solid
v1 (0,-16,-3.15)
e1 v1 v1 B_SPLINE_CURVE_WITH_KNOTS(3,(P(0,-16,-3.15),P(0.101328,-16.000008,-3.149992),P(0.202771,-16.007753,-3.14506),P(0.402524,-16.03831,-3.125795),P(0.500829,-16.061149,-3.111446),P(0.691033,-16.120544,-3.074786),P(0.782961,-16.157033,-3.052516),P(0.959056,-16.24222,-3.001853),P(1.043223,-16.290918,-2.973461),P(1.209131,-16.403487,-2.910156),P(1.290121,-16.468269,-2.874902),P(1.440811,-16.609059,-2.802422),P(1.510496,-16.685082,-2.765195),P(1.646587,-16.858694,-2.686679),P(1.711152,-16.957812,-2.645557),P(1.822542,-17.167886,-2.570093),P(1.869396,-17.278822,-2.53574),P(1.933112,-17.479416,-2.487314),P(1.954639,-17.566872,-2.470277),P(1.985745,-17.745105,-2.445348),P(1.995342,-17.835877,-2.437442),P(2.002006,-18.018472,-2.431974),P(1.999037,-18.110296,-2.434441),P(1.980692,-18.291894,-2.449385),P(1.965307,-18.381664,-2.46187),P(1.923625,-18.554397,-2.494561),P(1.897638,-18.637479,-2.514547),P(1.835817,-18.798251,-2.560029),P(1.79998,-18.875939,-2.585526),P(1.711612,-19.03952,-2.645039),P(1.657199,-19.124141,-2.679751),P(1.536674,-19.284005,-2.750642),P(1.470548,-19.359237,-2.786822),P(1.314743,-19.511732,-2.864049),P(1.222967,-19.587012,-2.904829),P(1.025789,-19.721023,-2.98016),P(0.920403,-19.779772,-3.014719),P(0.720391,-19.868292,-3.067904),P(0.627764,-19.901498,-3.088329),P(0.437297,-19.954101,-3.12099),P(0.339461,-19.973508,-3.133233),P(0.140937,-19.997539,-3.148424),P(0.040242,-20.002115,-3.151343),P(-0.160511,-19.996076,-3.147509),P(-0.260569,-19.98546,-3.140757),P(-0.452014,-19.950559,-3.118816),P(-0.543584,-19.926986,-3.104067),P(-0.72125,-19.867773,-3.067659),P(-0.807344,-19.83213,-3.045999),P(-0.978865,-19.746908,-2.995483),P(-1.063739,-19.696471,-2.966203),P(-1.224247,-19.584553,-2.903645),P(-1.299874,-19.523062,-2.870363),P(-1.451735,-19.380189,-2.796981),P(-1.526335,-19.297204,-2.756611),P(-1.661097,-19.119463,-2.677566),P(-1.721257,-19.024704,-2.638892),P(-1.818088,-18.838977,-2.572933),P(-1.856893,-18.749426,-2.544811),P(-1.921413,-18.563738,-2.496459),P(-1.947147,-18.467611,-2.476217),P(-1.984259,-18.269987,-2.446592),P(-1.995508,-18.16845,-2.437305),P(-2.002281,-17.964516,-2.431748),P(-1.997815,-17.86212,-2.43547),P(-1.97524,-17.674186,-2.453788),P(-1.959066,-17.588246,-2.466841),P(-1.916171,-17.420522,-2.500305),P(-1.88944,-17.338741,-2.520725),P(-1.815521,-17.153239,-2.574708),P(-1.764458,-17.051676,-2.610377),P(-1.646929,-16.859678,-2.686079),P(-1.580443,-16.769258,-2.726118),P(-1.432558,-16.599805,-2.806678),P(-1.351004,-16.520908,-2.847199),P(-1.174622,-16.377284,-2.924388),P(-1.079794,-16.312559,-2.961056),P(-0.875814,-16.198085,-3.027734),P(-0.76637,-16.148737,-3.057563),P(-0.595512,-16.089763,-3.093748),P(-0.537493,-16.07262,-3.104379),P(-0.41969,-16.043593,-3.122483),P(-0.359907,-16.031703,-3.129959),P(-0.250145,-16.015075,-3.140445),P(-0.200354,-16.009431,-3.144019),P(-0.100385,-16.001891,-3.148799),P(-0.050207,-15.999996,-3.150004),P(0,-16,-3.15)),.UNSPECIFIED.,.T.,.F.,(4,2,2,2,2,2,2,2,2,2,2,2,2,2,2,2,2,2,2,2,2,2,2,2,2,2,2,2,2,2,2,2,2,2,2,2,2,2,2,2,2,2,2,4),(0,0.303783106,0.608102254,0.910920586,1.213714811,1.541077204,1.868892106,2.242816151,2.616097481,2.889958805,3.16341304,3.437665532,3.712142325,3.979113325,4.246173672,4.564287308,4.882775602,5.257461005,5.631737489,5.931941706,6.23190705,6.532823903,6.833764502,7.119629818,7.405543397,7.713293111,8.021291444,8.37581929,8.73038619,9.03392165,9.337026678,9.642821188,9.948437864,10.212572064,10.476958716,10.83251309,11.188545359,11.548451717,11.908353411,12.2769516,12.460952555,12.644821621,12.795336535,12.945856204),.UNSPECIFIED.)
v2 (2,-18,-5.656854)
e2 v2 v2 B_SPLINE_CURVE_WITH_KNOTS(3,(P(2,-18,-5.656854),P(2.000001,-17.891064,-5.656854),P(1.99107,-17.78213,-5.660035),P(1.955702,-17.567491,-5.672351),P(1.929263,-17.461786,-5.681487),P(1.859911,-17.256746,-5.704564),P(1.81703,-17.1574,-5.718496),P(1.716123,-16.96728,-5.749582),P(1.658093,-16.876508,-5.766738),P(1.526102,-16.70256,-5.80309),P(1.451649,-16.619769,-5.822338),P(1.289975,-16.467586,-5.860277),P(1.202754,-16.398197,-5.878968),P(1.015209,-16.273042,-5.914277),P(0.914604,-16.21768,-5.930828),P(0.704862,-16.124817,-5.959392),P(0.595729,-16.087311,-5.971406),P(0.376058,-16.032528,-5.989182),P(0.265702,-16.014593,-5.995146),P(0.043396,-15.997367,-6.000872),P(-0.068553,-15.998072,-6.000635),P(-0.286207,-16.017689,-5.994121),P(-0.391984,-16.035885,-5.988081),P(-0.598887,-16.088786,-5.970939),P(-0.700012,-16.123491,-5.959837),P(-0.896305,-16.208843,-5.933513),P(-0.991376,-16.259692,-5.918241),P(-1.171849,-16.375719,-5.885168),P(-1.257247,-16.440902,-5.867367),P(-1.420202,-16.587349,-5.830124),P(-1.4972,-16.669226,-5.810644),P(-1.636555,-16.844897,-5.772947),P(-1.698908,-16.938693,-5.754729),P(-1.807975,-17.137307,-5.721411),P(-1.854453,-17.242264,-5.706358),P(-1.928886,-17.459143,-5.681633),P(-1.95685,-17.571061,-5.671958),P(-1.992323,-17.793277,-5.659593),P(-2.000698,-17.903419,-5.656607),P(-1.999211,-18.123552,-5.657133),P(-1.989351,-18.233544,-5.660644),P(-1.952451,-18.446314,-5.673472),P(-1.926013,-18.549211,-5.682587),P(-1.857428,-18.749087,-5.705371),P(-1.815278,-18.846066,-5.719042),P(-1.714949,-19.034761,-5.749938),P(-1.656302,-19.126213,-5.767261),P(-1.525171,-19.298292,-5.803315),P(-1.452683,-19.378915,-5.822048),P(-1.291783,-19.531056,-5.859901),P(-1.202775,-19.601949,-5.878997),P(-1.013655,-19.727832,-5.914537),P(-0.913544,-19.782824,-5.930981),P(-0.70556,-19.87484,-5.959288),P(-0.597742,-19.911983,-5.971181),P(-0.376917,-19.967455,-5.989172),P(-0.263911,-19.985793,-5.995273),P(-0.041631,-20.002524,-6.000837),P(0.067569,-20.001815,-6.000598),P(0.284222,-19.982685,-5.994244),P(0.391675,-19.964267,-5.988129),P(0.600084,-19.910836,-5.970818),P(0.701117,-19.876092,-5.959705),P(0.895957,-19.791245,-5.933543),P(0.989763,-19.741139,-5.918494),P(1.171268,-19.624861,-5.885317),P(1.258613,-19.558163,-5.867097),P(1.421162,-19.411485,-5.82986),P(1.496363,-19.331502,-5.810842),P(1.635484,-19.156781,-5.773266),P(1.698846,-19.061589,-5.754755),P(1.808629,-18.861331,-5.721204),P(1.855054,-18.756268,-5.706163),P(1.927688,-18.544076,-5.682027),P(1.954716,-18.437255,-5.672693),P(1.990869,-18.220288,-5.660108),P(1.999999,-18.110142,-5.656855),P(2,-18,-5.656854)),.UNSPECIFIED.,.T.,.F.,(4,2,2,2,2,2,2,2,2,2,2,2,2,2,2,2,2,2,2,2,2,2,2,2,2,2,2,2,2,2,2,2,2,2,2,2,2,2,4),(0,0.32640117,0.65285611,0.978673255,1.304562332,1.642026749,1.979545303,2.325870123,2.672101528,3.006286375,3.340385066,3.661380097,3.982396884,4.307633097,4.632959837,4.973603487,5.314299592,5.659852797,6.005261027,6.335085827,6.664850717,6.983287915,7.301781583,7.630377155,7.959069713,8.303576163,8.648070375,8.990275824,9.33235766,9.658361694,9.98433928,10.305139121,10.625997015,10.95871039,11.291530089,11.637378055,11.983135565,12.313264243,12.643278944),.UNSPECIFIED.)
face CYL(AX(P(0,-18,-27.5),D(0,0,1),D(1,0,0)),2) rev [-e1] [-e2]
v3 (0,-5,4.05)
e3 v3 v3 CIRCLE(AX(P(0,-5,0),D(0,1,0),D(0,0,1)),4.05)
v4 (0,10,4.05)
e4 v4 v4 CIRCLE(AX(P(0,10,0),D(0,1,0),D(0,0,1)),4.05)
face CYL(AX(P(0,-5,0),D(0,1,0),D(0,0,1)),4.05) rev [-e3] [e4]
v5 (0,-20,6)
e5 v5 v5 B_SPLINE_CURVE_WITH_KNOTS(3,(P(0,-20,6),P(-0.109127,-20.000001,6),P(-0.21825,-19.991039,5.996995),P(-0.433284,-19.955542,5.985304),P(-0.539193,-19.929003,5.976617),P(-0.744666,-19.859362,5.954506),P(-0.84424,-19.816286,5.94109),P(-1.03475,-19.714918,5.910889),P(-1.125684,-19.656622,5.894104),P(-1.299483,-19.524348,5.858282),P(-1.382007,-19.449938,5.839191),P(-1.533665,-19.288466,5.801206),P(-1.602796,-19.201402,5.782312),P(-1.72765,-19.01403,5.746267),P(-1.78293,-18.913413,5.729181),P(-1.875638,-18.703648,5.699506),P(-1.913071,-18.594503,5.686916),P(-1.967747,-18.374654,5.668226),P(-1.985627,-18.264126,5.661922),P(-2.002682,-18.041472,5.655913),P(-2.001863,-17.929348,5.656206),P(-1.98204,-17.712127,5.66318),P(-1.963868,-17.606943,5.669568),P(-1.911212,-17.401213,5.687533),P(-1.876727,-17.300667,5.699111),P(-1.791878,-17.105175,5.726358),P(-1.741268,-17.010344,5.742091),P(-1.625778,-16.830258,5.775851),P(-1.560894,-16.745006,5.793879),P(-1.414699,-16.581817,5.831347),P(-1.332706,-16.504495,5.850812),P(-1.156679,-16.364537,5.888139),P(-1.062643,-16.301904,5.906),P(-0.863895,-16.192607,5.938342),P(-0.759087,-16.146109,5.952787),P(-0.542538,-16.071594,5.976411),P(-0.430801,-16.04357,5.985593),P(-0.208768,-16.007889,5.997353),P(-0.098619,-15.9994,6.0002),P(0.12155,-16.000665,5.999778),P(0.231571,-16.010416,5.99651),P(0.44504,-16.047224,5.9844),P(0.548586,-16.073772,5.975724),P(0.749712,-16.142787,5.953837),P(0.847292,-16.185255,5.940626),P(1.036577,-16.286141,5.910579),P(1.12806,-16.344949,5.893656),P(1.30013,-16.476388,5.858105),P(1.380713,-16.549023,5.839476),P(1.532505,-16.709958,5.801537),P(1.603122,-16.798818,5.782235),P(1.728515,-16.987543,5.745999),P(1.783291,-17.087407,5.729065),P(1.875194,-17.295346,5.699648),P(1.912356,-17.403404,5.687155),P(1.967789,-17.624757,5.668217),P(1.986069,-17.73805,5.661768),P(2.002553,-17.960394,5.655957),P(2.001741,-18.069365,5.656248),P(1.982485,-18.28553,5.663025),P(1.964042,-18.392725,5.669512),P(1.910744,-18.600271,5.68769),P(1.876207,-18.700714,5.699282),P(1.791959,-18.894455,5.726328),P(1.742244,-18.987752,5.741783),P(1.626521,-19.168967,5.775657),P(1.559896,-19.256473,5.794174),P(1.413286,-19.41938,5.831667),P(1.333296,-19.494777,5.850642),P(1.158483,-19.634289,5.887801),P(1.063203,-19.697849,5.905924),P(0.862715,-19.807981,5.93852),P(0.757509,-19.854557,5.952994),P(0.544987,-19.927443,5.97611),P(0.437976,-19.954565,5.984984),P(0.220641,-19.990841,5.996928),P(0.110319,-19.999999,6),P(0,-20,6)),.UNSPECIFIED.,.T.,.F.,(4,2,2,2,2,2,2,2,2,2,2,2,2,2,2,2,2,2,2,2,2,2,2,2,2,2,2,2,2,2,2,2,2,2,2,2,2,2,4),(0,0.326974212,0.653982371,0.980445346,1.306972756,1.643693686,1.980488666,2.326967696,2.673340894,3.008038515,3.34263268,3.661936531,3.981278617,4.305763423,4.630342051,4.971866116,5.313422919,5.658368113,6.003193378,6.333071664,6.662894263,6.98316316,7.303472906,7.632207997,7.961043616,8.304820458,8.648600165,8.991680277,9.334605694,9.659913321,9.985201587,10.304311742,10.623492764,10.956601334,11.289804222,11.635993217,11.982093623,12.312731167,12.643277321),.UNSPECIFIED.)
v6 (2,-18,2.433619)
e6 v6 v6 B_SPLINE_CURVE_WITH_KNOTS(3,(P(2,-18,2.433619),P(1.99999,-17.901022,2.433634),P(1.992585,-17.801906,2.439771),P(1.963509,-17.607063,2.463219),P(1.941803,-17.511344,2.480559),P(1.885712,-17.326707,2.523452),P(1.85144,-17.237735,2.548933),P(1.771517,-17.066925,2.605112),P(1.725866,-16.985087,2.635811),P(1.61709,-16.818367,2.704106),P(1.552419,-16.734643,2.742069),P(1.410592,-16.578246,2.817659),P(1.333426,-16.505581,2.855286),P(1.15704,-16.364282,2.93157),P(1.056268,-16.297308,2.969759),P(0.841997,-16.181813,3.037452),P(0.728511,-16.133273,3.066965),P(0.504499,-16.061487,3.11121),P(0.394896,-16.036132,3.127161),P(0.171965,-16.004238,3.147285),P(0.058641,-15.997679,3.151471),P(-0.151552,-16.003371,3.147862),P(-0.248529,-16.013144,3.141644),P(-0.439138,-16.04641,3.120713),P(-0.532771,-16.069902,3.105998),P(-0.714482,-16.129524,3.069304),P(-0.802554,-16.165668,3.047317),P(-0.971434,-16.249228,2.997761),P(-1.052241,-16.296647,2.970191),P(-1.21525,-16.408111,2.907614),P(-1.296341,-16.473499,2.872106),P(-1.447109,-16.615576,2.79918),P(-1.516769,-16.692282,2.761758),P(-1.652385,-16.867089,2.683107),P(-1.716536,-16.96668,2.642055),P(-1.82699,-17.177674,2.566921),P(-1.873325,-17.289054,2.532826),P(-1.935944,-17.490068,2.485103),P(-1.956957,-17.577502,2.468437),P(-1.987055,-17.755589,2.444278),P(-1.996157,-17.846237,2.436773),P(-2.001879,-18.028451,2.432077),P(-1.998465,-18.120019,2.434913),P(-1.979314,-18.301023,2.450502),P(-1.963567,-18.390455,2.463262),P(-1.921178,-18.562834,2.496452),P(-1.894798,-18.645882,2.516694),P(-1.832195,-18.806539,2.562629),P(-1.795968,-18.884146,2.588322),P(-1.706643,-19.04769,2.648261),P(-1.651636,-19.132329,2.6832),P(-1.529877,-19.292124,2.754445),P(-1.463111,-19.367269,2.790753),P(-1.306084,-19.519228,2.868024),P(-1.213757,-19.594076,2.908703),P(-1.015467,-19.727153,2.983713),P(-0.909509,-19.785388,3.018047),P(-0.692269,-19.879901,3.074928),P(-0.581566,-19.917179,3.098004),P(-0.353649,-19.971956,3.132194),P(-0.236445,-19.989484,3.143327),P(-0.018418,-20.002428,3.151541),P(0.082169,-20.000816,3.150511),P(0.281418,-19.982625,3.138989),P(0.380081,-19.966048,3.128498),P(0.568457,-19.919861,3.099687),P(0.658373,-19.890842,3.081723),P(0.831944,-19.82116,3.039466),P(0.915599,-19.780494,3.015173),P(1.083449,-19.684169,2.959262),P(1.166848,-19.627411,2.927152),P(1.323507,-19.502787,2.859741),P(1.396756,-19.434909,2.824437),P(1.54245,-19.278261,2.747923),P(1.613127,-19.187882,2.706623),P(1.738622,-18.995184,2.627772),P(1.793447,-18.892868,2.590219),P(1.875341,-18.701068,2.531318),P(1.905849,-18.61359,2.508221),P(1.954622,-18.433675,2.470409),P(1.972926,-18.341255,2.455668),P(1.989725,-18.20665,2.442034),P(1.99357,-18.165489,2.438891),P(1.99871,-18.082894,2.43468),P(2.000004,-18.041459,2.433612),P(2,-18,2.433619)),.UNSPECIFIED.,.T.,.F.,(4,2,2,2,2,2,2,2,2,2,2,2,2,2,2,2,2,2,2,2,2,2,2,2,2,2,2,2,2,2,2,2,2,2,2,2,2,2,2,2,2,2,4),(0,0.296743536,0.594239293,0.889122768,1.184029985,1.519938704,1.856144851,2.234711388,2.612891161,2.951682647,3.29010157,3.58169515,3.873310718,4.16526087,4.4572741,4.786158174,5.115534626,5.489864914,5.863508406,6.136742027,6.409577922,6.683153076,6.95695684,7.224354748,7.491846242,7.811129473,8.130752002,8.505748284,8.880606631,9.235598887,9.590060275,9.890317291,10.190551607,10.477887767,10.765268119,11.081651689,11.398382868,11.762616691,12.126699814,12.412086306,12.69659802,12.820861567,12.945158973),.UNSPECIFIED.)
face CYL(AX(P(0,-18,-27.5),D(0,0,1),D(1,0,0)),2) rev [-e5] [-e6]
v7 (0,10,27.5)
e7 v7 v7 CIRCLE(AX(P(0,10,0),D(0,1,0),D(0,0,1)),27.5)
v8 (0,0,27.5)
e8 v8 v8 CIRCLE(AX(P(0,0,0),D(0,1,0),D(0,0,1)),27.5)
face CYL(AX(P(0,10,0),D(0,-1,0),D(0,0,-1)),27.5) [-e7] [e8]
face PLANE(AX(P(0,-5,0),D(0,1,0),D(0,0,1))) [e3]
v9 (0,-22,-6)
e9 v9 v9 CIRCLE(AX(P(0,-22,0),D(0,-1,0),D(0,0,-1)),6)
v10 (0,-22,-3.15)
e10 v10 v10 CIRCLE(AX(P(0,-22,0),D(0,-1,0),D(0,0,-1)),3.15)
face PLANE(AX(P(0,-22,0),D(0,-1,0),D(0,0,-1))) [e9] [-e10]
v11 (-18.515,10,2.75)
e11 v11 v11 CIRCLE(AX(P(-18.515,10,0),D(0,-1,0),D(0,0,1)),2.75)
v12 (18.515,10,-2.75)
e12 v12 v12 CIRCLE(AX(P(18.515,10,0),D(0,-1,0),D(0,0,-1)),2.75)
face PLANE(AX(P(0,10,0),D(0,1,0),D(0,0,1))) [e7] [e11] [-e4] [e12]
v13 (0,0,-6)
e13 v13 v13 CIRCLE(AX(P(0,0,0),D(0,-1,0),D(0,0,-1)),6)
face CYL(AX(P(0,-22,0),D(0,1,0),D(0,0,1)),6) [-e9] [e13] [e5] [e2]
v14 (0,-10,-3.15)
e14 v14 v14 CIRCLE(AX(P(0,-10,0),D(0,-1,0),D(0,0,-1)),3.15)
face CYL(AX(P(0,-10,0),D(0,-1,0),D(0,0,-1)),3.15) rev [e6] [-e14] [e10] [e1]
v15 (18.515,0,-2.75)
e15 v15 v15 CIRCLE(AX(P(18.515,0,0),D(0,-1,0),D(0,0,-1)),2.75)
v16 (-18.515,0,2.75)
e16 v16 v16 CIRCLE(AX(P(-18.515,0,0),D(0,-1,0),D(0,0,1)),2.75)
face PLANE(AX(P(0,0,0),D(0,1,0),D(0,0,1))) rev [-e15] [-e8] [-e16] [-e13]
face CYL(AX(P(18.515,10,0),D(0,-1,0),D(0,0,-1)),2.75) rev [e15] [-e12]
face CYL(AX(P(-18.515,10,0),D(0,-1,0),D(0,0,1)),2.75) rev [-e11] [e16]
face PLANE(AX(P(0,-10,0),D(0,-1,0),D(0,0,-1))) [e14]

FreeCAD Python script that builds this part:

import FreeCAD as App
import Part
import Sketcher

V = App.Vector

doc = App.newDocument("Part")
params = doc.addObject("Spreadsheet::Sheet", "Params")
for row, (alias, value) in enumerate([
    ("sketch1_diameter", "55 mm"),
    ("pad1_length", "10 mm"),
    ("sketch2_diameter", "5.5 mm"),
    ("pocket1_length", "10 mm"),
    ("sketch3_diameter", "12 mm"),
    ("pad2_length", "22 mm"),
    ("sketch4_diameter", "6.3 mm"),
    ("pocket2_length", "12 mm"),
    ("sketch5_diameter", "8.1 mm"),
    ("pocket3_length", "15 mm"),
    ("sketch6_diameter", "4 mm"),
], start=1):
    params.set(f"A{row}", alias)
    params.set(f"B{row}", "=" + value)
    params.setAlias(f"B{row}", alias)

body = doc.addObject("PartDesign::Body", "Body")

# Sketch on XZ plane
sketch1 = doc.addObject("Sketcher::SketchObject", "Sketch")
body.addObject(sketch1)
sketch1.AttachmentSupport = (doc.XZ_Plane, [""])
sketch1.MapMode = "FlatFace"
sketch1.addGeometry(Part.Circle(V(0, 0, 0), V(0, 0, 1), 27.5), False)
sketch1.addConstraint([
    Sketcher.Constraint("Coincident", 0, 3, -1, 1),
    Sketcher.Constraint("Diameter", 0, 55.0),
])
sketch1.setExpression("Constraints[1]", "Params.sketch1_diameter")
pad1 = doc.addObject("PartDesign::Pad", "Pad")
body.addObject(pad1)
pad1.Profile = sketch1
pad1.setExpression("Length", "Params.pad1_length")
pad1.Reversed = True

# Sketch on XZ plane
sketch2 = doc.addObject("Sketcher::SketchObject", "Sketch001")
body.addObject(sketch2)
sketch2.AttachmentSupport = (doc.XZ_Plane, [""])
sketch2.MapMode = "FlatFace"
sketch2.addGeometry(Part.Circle(V(18.515, 0, 0), V(0, 0, 1), 2.75), False)
sketch2.addConstraint([
    Sketcher.Constraint("PointOnObject", 0, 3, -1),
    Sketcher.Constraint("Diameter", 0, 5.5),
    Sketcher.Constraint("DistanceX", -1, 1, 0, 3, 18.515),
])
sketch2.setExpression("Constraints[1]", "Params.sketch2_diameter")
pocket1 = doc.addObject("PartDesign::Pocket", "Pocket")
body.addObject(pocket1)
pocket1.Profile = sketch2
pocket1.setExpression("Length", "Params.pocket1_length")
doc.recompute()

polarpattern = doc.addObject("PartDesign::PolarPattern", "PolarPattern")
body.addObject(polarpattern)
polarpattern.Originals = [pocket1]
polarpattern.Axis = (doc.Y_Axis, [""])
polarpattern.Angle = 360
polarpattern.Occurrences = 2
body.Tip = polarpattern

# Sketch on XZ plane
sketch3 = doc.addObject("Sketcher::SketchObject", "Sketch002")
body.addObject(sketch3)
sketch3.AttachmentSupport = (doc.XZ_Plane, [""])
sketch3.MapMode = "FlatFace"
sketch3.addGeometry(Part.Circle(V(0, 0, 0), V(0, 0, 1), 6), False)
sketch3.addConstraint([
    Sketcher.Constraint("Coincident", 0, 3, -1, 1),
    Sketcher.Constraint("Diameter", 0, 12.0),
])
sketch3.setExpression("Constraints[1]", "Params.sketch3_diameter")
pad2 = doc.addObject("PartDesign::Pad", "Pad001")
body.addObject(pad2)
pad2.Profile = sketch3
pad2.setExpression("Length", "Params.pad2_length")

# Sketch on XZ plane
sketch4 = doc.addObject("Sketcher::SketchObject", "Sketch003")
body.addObject(sketch4)
sketch4.AttachmentSupport = (doc.XZ_Plane, [""])
sketch4.MapMode = "FlatFace"
sketch4.AttachmentOffset = App.Placement(V(0, 0, 22), App.Rotation())
sketch4.addGeometry(Part.Circle(V(0, 0, 0), V(0, 0, 1), 3.15), False)
sketch4.addConstraint([
    Sketcher.Constraint("Coincident", 0, 3, -1, 1),
    Sketcher.Constraint("Diameter", 0, 6.3),
])
sketch4.setExpression("Constraints[1]", "Params.sketch4_diameter")
pocket2 = doc.addObject("PartDesign::Pocket", "Pocket001")
body.addObject(pocket2)
pocket2.Profile = sketch4
pocket2.setExpression("Length", "Params.pocket2_length")

# Sketch on XZ plane
sketch5 = doc.addObject("Sketcher::SketchObject", "Sketch004")
body.addObject(sketch5)
sketch5.AttachmentSupport = (doc.XZ_Plane, [""])
sketch5.MapMode = "FlatFace"
sketch5.AttachmentOffset = App.Placement(V(0, 0, -10), App.Rotation())
sketch5.addGeometry(Part.Circle(V(0, 0, 0), V(0, 0, 1), 4.05), False)
sketch5.addConstraint([
    Sketcher.Constraint("Coincident", 0, 3, -1, 1),
    Sketcher.Constraint("Diameter", 0, 8.1),
])
sketch5.setExpression("Constraints[1]", "Params.sketch5_diameter")
pocket3 = doc.addObject("PartDesign::Pocket", "Pocket002")
body.addObject(pocket3)
pocket3.Profile = sketch5
pocket3.setExpression("Length", "Params.pocket3_length")
pocket3.Reversed = True

# Sketch on XY plane
sketch6 = doc.addObject("Sketcher::SketchObject", "Sketch005")
body.addObject(sketch6)
sketch6.AttachmentSupport = (doc.XY_Plane, [""])
sketch6.MapMode = "FlatFace"
sketch6.addGeometry(Part.Circle(V(0, -18, 0), V(0, 0, 1), 2), False)
sketch6.addConstraint([
    Sketcher.Constraint("PointOnObject", 0, 3, -2),
    Sketcher.Constraint("Diameter", 0, 4.0),
    Sketcher.Constraint("DistanceY", 0, 3, -1, 1, 18.0),
])
sketch6.setExpression("Constraints[1]", "Params.sketch6_diameter")
pocket4 = doc.addObject("PartDesign::Pocket", "Pocket003")
body.addObject(pocket4)
pocket4.Profile = sketch6
pocket4.Type = "ThroughAll"
pocket4.Midplane = True

doc.recompute()
